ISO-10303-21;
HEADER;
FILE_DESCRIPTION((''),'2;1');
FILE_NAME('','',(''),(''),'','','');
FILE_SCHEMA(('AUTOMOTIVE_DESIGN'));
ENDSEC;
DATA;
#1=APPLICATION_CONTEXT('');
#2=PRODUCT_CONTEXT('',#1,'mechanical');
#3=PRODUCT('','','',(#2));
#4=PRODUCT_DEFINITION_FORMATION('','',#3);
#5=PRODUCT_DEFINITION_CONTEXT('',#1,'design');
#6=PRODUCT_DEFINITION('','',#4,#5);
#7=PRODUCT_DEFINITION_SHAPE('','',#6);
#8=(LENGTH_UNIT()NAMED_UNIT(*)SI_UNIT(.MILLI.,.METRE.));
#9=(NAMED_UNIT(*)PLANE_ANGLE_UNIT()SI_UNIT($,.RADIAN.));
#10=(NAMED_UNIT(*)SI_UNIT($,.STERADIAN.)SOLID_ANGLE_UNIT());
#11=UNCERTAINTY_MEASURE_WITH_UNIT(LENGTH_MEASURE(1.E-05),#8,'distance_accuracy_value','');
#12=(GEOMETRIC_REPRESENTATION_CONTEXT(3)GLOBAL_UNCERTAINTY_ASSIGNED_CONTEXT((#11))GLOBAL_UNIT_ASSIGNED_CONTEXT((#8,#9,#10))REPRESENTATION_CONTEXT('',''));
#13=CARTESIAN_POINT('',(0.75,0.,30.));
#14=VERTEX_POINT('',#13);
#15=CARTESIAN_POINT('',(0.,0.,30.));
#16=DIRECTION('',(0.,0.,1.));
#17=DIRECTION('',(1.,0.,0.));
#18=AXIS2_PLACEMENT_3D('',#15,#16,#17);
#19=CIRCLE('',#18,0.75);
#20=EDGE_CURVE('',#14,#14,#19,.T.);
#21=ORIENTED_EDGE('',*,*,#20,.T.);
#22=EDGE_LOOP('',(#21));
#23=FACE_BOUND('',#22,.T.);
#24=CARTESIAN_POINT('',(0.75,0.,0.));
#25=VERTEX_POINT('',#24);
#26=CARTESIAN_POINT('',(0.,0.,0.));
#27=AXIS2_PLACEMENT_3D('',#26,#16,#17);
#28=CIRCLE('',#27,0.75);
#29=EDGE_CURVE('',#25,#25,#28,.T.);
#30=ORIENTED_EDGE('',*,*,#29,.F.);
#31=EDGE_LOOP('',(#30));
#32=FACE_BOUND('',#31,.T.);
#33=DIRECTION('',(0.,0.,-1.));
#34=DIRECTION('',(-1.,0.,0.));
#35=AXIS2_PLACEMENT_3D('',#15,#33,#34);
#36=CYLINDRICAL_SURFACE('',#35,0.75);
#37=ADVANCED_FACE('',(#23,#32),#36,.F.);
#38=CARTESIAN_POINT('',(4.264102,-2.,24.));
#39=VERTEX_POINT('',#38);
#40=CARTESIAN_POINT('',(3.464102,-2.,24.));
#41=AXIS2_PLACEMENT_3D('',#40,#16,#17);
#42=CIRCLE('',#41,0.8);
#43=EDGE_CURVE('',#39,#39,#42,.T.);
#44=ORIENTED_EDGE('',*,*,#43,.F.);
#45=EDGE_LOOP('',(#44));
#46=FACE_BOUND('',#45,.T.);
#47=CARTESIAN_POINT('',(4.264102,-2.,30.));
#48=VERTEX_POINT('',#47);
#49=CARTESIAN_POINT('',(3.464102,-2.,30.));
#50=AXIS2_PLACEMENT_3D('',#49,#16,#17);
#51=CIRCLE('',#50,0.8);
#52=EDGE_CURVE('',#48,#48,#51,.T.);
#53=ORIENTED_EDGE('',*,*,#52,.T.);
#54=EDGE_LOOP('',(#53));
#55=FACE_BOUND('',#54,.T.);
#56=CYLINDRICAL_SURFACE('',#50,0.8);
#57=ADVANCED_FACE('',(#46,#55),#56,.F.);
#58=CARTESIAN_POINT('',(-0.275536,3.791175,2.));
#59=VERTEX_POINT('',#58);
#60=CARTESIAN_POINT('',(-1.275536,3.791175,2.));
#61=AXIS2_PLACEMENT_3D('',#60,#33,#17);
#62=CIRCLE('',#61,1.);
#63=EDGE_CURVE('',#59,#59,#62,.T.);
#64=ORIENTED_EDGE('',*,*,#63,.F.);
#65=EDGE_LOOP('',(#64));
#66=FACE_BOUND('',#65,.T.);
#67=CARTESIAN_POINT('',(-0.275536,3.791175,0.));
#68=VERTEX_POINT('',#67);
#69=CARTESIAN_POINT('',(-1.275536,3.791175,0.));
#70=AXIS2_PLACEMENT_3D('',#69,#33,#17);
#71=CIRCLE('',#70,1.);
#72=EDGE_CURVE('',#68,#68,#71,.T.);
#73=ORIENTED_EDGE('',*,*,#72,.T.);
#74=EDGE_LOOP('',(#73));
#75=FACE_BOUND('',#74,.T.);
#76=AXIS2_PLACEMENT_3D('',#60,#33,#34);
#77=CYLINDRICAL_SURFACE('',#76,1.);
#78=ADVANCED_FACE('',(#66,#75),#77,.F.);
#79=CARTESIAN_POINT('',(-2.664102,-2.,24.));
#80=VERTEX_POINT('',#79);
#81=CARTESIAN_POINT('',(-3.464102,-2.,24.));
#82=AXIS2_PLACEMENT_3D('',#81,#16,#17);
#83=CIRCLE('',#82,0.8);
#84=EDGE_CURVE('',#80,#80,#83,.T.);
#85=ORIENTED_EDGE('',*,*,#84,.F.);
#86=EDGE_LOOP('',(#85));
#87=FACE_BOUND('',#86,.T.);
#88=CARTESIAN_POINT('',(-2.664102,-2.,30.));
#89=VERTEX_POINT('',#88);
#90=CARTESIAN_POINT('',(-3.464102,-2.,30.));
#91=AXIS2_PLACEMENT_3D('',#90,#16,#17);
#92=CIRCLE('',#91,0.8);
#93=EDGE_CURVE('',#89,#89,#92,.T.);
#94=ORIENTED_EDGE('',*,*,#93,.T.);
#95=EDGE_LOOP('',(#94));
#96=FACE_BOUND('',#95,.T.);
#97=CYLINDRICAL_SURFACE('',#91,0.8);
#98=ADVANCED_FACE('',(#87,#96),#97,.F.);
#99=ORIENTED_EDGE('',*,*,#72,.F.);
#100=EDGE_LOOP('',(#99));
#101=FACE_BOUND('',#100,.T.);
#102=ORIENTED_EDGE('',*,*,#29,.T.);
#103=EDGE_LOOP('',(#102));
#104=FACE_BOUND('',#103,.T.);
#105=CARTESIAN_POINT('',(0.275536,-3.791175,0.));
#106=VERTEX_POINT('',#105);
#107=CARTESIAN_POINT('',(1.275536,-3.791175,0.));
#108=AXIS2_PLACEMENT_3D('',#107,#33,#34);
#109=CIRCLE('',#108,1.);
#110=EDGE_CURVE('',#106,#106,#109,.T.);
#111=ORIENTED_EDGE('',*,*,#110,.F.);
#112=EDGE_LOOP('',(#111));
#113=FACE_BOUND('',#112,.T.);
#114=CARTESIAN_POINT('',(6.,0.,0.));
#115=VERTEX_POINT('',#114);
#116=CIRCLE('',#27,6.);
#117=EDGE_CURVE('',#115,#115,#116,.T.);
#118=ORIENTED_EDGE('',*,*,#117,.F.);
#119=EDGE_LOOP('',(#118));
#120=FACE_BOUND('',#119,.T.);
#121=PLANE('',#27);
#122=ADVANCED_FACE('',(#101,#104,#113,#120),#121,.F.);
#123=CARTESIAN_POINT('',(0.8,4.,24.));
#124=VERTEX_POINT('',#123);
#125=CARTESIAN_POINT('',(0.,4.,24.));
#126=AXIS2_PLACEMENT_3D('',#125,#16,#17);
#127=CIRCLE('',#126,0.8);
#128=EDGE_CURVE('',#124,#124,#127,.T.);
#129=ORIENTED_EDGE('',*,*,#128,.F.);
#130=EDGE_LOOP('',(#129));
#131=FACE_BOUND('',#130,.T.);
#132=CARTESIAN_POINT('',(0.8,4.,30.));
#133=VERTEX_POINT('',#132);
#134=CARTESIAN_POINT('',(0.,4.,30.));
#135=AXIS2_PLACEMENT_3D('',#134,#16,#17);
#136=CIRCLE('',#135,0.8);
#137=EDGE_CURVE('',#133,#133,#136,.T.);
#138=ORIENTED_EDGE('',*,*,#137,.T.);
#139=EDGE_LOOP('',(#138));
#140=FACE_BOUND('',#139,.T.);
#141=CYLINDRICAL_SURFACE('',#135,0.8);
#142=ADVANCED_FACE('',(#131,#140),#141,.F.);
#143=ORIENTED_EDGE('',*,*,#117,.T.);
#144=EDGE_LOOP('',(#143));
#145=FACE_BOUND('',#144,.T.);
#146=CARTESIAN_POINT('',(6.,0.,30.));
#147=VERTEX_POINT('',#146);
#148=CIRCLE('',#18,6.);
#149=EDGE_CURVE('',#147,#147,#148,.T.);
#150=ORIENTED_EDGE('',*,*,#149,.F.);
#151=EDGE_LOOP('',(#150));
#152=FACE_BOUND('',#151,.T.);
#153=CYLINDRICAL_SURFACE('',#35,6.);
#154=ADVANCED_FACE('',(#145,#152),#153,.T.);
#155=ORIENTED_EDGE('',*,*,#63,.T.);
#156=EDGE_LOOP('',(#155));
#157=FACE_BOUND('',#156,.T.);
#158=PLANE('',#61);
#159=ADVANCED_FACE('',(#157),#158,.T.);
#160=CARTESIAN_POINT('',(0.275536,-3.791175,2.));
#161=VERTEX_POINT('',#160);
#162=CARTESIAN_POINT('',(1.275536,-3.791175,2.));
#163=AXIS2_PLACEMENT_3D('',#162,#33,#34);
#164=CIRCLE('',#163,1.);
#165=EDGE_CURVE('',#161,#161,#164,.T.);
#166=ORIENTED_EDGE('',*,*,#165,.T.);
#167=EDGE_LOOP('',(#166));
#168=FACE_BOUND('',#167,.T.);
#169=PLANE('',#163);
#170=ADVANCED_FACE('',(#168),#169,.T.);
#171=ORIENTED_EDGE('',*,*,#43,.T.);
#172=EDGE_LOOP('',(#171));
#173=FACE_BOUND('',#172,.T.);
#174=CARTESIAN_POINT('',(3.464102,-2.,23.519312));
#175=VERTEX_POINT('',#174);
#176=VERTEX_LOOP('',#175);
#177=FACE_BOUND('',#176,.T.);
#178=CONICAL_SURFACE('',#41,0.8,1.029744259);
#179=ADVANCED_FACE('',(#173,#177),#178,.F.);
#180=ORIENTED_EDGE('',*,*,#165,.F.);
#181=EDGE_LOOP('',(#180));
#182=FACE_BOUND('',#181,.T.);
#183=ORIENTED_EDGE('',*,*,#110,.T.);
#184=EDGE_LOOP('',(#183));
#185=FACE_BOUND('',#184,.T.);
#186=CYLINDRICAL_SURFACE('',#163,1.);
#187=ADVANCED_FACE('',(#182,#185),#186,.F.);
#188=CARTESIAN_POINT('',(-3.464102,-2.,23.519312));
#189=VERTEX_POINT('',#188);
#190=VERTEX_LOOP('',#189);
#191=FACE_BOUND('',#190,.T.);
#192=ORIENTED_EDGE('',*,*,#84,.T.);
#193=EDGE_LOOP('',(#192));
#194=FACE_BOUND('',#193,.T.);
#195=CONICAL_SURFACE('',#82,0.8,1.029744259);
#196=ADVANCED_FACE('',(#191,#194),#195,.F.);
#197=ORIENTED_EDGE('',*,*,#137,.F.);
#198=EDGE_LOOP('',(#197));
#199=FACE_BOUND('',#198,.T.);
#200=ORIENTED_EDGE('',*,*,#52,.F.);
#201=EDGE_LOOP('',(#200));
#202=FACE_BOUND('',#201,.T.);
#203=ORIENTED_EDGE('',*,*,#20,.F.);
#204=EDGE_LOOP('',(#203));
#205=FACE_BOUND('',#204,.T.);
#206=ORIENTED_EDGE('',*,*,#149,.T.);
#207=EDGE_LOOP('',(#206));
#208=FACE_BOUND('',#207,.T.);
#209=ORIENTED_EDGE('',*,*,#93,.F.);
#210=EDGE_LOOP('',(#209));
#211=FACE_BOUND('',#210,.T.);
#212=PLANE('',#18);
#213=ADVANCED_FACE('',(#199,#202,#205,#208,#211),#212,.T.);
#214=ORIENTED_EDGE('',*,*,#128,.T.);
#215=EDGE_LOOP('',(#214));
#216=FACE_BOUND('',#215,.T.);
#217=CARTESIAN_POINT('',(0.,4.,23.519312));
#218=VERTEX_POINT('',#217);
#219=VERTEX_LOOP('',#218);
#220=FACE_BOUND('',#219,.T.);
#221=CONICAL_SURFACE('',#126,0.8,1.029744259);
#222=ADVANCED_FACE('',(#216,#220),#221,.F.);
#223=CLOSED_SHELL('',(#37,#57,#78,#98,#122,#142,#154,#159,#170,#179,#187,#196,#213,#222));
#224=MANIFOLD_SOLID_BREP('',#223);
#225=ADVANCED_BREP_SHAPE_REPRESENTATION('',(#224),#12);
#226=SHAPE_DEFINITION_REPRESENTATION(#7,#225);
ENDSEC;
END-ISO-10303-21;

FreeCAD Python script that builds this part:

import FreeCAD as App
import Part
import Sketcher
from FreeCAD import Vector
Q = App.Units.Quantity


def add_polygon(sketch, points):
    """Adds a closed chain of lines whose ends are joined by coincident constraints."""
    first, n = sketch.GeometryCount, len(points)
    for a, b in zip(points, points[1:] + points[:1]):
        sketch.addGeometry(Part.LineSegment(App.Vector(*a, 0), App.Vector(*b, 0)), False)
    for i in range(n):
        sketch.addConstraint(Sketcher.Constraint("Coincident", first + i, 2, first + (i + 1) % n, 1))

doc = App.newDocument("Part")
body = doc.addObject("PartDesign::Body", "Body")

# Sketch on XY plane
sketch1 = body.newObject("Sketcher::SketchObject", "Sketch")
sketch1.AttachmentSupport = (doc.getObject("XY_Plane"), [""])
sketch1.MapMode = "FlatFace"
sketch1.addGeometry([
    Part.Circle(Vector(0, 0, 0), Vector(0, 0, 1), 6),
    Part.Circle(Vector(0, 0, 0), Vector(0, 0, 1), 0.8),
], False)
sketch1.addConstraint([
    Sketcher.Constraint("Coincident", 0, 3, -1, 1),
    Sketcher.Constraint("Coincident", 1, 3, -1, 1),
    Sketcher.Constraint("Diameter", 0, Q("12 mm")),
    Sketcher.Constraint("Diameter", 1, Q("1.5 mm")),
])
pad1 = body.newObject("PartDesign::Pad", "Pad")
pad1.Profile = sketch1
pad1.Length = 30

# Sketch on YZ plane
sketch2 = body.newObject("Sketcher::SketchObject", "Sketch001")
sketch2.AttachmentSupport = (doc.getObject("YZ_Plane"), [""])
sketch2.MapMode = "FlatFace"
add_polygon(sketch2, [(4, 23.5), (4, 30), (3.2, 30), (3.2, 24)])  # lines 0-3
sketch2.addGeometry(Part.LineSegment(Vector(4, 30, 0), Vector(4, 23.5, 0)), True)  # axis
sketch2.addConstraint([
    Sketcher.Constraint("Vertical", 0),
    Sketcher.Constraint("Horizontal", 1),
    Sketcher.Constraint("Vertical", 2),
    Sketcher.Constraint("Vertical", 4),
    Sketcher.Constraint("Coincident", 4, 1, 0, 2),
    Sketcher.Constraint("Equal", 0, 4),
    Sketcher.Constraint("DistanceY", 2, 2, 2, 1, Q("6 mm")),
    Sketcher.Constraint("Angle", 3, Q("-31 deg")),
    Sketcher.Constraint("DistanceX", 1, 2, 1, 1, Q("0.8 mm")),
    Sketcher.Constraint("DistanceX", -1, 1, 0, 2, Q("4 mm")),
    Sketcher.Constraint("DistanceY", -1, 1, 0, 2, Q("30 mm")),
])
groove = body.newObject("PartDesign::Groove", "Groove")
groove.Profile = sketch2
groove.ReferenceAxis = (sketch2, ["Axis0"])
groove.Angle = 360
doc.recompute()

polarpattern = body.newObject("PartDesign::PolarPattern", "PolarPattern")
polarpattern.Originals = [groove]
polarpattern.Axis = (doc.getObject("Z_Axis"), [""])
polarpattern.Angle = 360
polarpattern.Occurrences = 3
body.Tip = polarpattern

# Sketch on XY plane
sketch3 = body.newObject("Sketcher::SketchObject", "Sketch002")
sketch3.AttachmentSupport = (doc.getObject("XY_Plane"), [""])
sketch3.MapMode = "FlatFace"
sketch3.addGeometry(Part.Circle(Vector(1.3, -3.8, 0), Vector(0, 0, 1), 1), False)
sketch3.addConstraint([
    Sketcher.Constraint("Diameter", 0, Q("2 mm")),
    Sketcher.Constraint("DistanceX", -1, 1, 0, 3, Q("1.275536 mm")),
    Sketcher.Constraint("DistanceY", 0, 3, -1, 1, Q("3.791175 mm")),
])
pocket1 = body.newObject("PartDesign::Pocket", "Pocket")
pocket1.Profile = sketch3
pocket1.Length = 2
pocket1.Reversed = True
doc.recompute()

polarpattern2 = body.newObject("PartDesign::PolarPattern", "PolarPattern001")
polarpattern2.Originals = [pocket1]
polarpattern2.Axis = (doc.getObject("Z_Axis"), [""])
polarpattern2.Angle = 360
polarpattern2.Occurrences = 2
body.Tip = polarpattern2

doc.recompute()
